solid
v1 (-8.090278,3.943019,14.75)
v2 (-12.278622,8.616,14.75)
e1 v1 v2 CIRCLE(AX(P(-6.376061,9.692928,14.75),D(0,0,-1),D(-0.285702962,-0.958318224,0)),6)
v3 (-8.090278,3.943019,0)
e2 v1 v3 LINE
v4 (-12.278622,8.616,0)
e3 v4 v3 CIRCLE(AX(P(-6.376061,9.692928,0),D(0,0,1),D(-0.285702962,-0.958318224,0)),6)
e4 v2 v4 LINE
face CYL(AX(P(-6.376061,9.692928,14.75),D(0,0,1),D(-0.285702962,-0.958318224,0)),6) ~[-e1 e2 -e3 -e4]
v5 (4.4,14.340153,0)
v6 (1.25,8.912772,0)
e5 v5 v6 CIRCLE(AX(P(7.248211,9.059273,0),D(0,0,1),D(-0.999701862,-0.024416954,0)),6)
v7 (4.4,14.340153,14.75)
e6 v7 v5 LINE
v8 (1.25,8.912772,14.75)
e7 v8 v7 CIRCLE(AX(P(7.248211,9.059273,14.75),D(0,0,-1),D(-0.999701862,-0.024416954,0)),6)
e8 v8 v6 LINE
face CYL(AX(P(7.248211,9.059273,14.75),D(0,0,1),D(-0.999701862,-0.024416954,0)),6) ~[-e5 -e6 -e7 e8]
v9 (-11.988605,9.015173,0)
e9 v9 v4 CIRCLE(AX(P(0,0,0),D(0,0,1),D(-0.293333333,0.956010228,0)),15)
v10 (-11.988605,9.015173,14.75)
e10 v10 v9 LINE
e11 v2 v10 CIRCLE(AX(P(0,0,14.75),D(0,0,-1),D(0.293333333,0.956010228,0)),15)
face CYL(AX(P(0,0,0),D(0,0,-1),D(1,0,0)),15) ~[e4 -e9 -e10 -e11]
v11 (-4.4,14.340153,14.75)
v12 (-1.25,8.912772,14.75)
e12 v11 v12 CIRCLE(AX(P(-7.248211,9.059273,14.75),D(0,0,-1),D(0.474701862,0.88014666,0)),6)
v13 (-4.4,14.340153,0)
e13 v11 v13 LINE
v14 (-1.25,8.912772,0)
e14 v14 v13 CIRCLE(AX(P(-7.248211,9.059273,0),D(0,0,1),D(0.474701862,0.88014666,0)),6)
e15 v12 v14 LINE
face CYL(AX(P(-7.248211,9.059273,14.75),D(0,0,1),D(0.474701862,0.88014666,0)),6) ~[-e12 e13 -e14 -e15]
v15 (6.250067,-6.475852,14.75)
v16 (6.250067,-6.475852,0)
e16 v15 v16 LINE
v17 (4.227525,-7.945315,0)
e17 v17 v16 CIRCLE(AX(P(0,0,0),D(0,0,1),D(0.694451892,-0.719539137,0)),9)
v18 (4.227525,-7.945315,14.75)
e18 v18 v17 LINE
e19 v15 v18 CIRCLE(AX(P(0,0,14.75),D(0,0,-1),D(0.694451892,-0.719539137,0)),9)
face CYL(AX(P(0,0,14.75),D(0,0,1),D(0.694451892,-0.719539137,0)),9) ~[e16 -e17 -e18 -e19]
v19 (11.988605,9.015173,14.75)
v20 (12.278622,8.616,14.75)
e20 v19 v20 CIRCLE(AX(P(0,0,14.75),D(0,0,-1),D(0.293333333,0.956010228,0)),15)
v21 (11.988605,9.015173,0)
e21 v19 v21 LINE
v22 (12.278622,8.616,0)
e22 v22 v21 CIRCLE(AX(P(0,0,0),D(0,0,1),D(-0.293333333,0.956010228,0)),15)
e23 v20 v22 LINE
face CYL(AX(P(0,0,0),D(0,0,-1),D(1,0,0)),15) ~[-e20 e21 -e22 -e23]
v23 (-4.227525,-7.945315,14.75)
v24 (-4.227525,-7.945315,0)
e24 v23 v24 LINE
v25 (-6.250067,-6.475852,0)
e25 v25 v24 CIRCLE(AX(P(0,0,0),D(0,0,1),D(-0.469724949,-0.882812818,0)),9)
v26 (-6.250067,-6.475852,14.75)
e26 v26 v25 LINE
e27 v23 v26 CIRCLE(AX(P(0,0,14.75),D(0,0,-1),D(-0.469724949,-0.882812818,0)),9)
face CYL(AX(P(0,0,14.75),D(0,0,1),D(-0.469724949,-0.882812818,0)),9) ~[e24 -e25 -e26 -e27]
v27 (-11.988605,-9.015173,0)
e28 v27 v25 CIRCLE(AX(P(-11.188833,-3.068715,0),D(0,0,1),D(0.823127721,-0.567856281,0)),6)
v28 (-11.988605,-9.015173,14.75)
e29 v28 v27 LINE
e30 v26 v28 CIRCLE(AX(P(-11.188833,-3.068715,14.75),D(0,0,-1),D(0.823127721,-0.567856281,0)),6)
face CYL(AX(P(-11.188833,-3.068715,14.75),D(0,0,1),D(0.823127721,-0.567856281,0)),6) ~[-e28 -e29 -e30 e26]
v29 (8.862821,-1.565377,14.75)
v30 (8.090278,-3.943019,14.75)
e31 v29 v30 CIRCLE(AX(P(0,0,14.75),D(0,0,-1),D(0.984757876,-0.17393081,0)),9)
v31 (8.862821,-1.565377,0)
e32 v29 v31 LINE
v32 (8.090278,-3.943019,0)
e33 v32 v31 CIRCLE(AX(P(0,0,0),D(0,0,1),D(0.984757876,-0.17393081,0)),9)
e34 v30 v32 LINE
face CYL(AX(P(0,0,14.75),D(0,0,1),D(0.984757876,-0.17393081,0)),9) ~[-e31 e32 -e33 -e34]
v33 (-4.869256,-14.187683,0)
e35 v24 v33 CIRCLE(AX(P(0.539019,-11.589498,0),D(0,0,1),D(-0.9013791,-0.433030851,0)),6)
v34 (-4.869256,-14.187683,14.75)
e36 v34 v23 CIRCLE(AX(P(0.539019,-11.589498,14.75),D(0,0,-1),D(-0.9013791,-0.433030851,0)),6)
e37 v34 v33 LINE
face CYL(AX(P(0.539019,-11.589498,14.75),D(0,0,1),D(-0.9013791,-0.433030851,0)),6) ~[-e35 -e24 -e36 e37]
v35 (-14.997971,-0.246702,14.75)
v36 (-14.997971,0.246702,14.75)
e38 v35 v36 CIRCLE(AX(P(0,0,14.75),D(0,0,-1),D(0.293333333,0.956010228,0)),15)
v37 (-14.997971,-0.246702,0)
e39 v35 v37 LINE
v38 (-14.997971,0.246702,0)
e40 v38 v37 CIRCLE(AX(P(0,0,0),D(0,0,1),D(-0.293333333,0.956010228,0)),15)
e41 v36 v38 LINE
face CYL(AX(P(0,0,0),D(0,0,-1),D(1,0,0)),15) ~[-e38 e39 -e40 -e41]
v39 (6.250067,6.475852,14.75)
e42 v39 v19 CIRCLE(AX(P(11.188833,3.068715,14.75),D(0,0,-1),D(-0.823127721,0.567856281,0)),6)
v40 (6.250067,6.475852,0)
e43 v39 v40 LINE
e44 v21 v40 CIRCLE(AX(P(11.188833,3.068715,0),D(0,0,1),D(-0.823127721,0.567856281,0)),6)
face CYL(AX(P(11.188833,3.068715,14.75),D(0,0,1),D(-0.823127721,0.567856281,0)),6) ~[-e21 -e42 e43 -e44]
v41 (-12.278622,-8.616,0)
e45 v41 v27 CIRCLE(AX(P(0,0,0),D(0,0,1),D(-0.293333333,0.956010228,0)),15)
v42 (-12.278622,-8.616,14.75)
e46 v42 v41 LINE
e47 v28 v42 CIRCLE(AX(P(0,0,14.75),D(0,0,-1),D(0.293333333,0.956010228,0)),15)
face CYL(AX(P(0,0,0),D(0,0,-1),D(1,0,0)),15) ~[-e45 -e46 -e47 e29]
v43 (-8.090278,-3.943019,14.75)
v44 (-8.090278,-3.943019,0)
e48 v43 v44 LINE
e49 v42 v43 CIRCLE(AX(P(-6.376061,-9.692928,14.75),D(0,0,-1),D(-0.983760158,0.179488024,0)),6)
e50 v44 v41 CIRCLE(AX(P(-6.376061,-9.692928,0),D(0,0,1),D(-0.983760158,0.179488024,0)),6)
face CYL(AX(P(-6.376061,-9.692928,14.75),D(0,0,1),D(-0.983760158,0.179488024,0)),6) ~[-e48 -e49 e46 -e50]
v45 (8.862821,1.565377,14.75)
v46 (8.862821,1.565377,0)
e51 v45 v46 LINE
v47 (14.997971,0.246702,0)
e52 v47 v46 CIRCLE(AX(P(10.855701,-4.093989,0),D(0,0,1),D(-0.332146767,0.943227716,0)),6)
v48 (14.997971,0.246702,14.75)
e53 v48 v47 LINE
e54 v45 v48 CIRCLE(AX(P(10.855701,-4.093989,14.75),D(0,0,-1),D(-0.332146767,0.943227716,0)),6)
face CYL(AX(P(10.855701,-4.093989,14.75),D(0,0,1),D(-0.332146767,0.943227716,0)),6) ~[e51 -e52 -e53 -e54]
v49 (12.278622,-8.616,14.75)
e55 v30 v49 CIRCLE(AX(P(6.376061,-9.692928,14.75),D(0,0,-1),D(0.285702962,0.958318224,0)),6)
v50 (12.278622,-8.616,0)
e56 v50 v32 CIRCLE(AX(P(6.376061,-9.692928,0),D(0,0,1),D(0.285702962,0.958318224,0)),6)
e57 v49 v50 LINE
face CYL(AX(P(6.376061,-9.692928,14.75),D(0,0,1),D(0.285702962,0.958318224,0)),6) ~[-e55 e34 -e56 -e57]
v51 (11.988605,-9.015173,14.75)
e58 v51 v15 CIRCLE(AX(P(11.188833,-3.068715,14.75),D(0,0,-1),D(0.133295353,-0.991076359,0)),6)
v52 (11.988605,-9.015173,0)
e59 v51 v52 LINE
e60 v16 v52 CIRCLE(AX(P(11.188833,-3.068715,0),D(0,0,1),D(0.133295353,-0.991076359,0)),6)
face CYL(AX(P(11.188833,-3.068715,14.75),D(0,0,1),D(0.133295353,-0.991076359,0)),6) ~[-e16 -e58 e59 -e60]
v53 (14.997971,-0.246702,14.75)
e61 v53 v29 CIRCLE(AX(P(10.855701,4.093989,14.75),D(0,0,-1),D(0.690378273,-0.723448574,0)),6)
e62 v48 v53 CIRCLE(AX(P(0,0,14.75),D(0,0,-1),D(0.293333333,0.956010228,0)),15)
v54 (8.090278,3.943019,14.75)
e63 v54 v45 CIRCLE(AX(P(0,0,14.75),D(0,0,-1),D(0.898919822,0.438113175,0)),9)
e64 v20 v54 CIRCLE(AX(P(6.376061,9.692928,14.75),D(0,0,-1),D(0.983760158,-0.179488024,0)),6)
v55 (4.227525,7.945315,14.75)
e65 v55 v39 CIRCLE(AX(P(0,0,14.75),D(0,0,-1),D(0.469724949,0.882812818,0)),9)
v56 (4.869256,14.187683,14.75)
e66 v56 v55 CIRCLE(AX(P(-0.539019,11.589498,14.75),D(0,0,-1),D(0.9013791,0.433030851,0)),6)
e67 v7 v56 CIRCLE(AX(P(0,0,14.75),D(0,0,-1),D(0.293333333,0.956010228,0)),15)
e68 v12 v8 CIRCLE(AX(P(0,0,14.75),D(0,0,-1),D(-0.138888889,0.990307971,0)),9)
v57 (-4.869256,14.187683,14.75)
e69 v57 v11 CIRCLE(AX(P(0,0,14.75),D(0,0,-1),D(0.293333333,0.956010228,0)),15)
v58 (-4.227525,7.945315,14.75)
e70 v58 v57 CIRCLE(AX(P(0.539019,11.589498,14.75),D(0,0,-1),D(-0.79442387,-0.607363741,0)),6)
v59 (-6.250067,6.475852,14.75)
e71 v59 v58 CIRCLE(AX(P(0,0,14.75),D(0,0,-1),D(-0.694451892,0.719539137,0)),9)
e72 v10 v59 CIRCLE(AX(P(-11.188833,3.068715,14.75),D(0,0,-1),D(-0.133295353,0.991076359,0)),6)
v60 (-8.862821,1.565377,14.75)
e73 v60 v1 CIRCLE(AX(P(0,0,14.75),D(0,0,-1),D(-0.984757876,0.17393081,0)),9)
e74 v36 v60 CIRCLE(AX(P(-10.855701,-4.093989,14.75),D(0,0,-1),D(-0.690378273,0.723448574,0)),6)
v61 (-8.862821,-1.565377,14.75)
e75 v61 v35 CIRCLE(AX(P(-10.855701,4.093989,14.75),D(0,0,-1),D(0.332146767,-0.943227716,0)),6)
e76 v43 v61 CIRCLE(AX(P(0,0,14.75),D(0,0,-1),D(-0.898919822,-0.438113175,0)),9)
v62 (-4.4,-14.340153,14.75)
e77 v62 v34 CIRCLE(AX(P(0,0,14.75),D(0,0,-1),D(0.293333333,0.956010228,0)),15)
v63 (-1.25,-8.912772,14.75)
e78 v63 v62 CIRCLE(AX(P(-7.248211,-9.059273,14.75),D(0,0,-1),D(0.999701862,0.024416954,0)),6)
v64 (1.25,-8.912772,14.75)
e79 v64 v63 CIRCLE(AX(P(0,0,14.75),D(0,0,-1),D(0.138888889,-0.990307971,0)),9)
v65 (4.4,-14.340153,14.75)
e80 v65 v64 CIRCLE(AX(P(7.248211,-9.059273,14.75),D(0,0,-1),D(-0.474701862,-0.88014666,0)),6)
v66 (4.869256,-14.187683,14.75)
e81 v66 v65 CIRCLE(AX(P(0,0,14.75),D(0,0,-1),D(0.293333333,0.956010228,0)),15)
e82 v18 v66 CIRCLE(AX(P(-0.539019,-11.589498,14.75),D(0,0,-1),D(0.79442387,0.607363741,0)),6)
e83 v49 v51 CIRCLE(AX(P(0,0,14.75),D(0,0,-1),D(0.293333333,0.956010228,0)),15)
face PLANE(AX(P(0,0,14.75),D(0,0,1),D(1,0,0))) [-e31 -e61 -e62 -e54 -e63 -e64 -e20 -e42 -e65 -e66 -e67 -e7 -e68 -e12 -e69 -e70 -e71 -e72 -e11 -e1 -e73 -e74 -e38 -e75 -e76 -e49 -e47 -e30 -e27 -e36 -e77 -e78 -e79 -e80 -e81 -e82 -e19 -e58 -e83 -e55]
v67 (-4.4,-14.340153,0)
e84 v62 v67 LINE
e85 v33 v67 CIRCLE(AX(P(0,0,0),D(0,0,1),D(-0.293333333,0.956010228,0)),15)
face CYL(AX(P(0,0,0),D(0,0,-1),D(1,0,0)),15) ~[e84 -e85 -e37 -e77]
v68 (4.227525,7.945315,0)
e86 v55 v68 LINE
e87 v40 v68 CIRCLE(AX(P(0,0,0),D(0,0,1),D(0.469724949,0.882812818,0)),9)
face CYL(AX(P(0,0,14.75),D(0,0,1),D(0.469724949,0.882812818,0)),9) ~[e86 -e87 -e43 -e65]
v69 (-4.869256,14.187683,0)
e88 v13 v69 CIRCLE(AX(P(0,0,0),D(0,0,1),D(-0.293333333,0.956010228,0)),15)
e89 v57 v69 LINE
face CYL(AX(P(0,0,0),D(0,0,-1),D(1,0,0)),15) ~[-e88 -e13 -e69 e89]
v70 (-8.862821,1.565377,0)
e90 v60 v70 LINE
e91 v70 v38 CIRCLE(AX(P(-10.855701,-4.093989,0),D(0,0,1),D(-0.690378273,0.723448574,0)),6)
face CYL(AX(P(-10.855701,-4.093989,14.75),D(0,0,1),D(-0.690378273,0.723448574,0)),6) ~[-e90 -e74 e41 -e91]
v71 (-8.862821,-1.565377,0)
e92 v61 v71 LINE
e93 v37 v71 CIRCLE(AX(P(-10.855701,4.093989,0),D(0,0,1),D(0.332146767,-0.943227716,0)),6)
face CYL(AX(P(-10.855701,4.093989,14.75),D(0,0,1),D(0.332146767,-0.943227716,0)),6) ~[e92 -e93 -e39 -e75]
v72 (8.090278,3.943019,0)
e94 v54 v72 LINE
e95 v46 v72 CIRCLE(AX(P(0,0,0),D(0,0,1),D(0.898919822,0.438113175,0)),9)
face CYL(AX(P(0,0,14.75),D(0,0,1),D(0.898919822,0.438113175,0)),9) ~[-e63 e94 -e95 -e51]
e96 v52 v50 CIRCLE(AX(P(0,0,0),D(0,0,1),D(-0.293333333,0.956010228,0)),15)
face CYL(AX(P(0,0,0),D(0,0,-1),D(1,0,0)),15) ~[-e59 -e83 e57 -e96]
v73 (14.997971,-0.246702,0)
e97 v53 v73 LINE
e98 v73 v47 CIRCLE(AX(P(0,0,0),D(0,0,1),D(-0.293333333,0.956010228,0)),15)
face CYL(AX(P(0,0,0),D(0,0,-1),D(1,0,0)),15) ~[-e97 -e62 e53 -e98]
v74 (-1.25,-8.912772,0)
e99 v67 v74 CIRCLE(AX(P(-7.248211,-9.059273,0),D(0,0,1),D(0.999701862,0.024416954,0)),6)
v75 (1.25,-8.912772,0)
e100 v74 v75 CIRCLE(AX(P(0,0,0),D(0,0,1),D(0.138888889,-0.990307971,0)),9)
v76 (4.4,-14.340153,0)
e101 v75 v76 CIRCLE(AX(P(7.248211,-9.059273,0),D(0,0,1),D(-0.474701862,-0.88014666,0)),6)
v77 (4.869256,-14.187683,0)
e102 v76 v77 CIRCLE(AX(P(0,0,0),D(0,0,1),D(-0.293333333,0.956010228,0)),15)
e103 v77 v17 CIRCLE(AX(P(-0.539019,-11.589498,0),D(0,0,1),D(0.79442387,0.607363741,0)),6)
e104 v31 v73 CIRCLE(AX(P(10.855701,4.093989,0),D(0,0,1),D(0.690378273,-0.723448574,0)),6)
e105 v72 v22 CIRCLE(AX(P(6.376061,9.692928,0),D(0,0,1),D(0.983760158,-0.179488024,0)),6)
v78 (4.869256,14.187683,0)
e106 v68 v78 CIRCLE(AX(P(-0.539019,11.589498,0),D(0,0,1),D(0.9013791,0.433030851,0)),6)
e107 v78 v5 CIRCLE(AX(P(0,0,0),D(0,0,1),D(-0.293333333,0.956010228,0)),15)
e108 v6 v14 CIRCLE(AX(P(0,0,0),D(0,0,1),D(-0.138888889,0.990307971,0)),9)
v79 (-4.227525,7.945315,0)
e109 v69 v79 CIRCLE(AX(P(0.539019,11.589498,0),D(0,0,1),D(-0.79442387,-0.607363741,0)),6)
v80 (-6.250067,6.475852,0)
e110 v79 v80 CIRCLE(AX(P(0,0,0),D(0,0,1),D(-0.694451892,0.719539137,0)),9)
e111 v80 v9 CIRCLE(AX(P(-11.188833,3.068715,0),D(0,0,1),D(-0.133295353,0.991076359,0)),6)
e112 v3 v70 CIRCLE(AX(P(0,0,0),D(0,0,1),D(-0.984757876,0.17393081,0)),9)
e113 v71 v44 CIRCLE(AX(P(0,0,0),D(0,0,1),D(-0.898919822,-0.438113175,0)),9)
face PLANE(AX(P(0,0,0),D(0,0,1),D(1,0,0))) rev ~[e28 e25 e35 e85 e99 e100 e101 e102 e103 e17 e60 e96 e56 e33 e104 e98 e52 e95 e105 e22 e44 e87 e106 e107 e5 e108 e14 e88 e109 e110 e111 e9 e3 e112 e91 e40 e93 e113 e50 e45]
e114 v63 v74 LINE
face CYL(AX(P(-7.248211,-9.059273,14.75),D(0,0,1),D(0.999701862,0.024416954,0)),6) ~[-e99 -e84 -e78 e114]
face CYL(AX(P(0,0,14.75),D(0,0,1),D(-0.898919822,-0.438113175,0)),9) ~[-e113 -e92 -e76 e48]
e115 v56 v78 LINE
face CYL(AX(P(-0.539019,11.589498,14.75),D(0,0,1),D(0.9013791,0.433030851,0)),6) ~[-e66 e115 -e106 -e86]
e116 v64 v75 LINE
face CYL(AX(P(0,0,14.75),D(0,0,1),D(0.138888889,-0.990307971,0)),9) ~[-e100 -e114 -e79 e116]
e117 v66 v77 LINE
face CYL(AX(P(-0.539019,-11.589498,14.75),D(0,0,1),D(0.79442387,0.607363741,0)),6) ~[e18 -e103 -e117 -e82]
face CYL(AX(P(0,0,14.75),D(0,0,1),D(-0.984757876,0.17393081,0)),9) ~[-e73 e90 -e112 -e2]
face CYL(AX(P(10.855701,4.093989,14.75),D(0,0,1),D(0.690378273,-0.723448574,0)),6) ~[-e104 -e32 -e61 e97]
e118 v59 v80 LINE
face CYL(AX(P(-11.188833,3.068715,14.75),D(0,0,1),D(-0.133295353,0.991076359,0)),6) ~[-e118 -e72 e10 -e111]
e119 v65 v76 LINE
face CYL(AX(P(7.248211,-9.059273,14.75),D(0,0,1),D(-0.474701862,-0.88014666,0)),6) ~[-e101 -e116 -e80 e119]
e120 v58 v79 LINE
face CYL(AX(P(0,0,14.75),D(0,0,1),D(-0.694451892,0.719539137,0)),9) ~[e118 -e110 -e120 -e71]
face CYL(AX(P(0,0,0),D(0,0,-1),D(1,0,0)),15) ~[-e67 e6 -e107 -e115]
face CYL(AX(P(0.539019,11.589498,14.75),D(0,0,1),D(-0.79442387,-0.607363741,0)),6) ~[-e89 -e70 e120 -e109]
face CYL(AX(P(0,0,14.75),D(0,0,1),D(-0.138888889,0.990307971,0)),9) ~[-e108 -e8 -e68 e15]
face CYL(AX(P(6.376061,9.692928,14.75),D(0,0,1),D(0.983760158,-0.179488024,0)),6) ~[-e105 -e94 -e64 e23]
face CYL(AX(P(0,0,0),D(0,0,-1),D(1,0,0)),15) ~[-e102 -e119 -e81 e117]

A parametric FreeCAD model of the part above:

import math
import FreeCAD as App
import Part
import Sketcher
from FreeCAD import Vector

doc = App.newDocument("Part")
body = doc.addObject("PartDesign::Body", "Body")

# Sketch on XY plane
sketch1 = body.newObject("Sketcher::SketchObject", "Sketch")
sketch1.AttachmentSupport = (doc.getObject("XY_Plane"), [""])
sketch1.MapMode = "FlatFace"
sketch1.addGeometry(Part.Circle(Vector(0, 0, 0), Vector(0, 0, 1), 15), False)
sketch1.addConstraint([
    Sketcher.Constraint("Coincident", 0, 3, -1, 1),
    Sketcher.Constraint("Diameter", 0, 30.0),
])
pad1 = body.newObject("PartDesign::Pad", "Pad")
pad1.Profile = sketch1
pad1.Length = 14.75

# Sketch on XY plane
sketch2 = body.newObject("Sketcher::SketchObject", "Sketch001")
sketch2.AttachmentSupport = (doc.getObject("XY_Plane"), [""])
sketch2.MapMode = "FlatFace"
sketch2.AttachmentOffset = App.Placement(Vector(0, 0, 14.75), App.Rotation())
sketch2.addGeometry([
    Part.ArcOfCircle(Part.Circle(Vector(0, 0, 0), Vector(0, 0, 1), 9), math.radians(82.02), math.radians(97.98)),
    Part.ArcOfCircle(Part.Circle(Vector(7.2, 9.1, 0), Vector(0, 0, 1), 6), math.radians(118), math.radians(181)),
    Part.ArcOfCircle(Part.Circle(Vector(0, 0, 0), Vector(0, 0, 1), 15), math.radians(73), math.radians(107)),
    Part.ArcOfCircle(Part.Circle(Vector(-7.2, 9.1, 0), Vector(0, 0, 1), 6), math.radians(-1), math.radians(62)),
], False)
sketch2.addConstraint([
    Sketcher.Constraint("Coincident", 0, 1, 1, 2),
    Sketcher.Constraint("Coincident", 1, 1, 2, 1),
    Sketcher.Constraint("Coincident", 2, 2, 3, 2),
    Sketcher.Constraint("Coincident", 3, 1, 0, 2),
    Sketcher.Constraint("Coincident", 0, 3, -1, 1),
    Sketcher.Constraint("Coincident", 2, 3, -1, 1),
    Sketcher.Constraint("Equal", 1, 3),
    Sketcher.Constraint("Symmetric", 1, 3, 3, 3, -2),
    Sketcher.Constraint("Radius", 0, 9.0),
    Sketcher.Constraint("Radius", 1, 6.0),
    Sketcher.Constraint("Radius", 2, 15.0),
    Sketcher.Constraint("DistanceX", -1, 1, 1, 1, 4.4),
    Sketcher.Constraint("DistanceX", 3, 1, 0, 1, 2.5),
])
pocket1 = body.newObject("PartDesign::Pocket", "Pocket")
pocket1.Profile = sketch2
pocket1.Type = "ThroughAll"
doc.recompute()

polarpattern = body.newObject("PartDesign::PolarPattern", "PolarPattern")
polarpattern.Originals = [pocket1]
polarpattern.Axis = (doc.getObject("Z_Axis"), [""])
polarpattern.Angle = 360
polarpattern.Occurrences = 10
body.Tip = polarpattern

doc.recompute()
